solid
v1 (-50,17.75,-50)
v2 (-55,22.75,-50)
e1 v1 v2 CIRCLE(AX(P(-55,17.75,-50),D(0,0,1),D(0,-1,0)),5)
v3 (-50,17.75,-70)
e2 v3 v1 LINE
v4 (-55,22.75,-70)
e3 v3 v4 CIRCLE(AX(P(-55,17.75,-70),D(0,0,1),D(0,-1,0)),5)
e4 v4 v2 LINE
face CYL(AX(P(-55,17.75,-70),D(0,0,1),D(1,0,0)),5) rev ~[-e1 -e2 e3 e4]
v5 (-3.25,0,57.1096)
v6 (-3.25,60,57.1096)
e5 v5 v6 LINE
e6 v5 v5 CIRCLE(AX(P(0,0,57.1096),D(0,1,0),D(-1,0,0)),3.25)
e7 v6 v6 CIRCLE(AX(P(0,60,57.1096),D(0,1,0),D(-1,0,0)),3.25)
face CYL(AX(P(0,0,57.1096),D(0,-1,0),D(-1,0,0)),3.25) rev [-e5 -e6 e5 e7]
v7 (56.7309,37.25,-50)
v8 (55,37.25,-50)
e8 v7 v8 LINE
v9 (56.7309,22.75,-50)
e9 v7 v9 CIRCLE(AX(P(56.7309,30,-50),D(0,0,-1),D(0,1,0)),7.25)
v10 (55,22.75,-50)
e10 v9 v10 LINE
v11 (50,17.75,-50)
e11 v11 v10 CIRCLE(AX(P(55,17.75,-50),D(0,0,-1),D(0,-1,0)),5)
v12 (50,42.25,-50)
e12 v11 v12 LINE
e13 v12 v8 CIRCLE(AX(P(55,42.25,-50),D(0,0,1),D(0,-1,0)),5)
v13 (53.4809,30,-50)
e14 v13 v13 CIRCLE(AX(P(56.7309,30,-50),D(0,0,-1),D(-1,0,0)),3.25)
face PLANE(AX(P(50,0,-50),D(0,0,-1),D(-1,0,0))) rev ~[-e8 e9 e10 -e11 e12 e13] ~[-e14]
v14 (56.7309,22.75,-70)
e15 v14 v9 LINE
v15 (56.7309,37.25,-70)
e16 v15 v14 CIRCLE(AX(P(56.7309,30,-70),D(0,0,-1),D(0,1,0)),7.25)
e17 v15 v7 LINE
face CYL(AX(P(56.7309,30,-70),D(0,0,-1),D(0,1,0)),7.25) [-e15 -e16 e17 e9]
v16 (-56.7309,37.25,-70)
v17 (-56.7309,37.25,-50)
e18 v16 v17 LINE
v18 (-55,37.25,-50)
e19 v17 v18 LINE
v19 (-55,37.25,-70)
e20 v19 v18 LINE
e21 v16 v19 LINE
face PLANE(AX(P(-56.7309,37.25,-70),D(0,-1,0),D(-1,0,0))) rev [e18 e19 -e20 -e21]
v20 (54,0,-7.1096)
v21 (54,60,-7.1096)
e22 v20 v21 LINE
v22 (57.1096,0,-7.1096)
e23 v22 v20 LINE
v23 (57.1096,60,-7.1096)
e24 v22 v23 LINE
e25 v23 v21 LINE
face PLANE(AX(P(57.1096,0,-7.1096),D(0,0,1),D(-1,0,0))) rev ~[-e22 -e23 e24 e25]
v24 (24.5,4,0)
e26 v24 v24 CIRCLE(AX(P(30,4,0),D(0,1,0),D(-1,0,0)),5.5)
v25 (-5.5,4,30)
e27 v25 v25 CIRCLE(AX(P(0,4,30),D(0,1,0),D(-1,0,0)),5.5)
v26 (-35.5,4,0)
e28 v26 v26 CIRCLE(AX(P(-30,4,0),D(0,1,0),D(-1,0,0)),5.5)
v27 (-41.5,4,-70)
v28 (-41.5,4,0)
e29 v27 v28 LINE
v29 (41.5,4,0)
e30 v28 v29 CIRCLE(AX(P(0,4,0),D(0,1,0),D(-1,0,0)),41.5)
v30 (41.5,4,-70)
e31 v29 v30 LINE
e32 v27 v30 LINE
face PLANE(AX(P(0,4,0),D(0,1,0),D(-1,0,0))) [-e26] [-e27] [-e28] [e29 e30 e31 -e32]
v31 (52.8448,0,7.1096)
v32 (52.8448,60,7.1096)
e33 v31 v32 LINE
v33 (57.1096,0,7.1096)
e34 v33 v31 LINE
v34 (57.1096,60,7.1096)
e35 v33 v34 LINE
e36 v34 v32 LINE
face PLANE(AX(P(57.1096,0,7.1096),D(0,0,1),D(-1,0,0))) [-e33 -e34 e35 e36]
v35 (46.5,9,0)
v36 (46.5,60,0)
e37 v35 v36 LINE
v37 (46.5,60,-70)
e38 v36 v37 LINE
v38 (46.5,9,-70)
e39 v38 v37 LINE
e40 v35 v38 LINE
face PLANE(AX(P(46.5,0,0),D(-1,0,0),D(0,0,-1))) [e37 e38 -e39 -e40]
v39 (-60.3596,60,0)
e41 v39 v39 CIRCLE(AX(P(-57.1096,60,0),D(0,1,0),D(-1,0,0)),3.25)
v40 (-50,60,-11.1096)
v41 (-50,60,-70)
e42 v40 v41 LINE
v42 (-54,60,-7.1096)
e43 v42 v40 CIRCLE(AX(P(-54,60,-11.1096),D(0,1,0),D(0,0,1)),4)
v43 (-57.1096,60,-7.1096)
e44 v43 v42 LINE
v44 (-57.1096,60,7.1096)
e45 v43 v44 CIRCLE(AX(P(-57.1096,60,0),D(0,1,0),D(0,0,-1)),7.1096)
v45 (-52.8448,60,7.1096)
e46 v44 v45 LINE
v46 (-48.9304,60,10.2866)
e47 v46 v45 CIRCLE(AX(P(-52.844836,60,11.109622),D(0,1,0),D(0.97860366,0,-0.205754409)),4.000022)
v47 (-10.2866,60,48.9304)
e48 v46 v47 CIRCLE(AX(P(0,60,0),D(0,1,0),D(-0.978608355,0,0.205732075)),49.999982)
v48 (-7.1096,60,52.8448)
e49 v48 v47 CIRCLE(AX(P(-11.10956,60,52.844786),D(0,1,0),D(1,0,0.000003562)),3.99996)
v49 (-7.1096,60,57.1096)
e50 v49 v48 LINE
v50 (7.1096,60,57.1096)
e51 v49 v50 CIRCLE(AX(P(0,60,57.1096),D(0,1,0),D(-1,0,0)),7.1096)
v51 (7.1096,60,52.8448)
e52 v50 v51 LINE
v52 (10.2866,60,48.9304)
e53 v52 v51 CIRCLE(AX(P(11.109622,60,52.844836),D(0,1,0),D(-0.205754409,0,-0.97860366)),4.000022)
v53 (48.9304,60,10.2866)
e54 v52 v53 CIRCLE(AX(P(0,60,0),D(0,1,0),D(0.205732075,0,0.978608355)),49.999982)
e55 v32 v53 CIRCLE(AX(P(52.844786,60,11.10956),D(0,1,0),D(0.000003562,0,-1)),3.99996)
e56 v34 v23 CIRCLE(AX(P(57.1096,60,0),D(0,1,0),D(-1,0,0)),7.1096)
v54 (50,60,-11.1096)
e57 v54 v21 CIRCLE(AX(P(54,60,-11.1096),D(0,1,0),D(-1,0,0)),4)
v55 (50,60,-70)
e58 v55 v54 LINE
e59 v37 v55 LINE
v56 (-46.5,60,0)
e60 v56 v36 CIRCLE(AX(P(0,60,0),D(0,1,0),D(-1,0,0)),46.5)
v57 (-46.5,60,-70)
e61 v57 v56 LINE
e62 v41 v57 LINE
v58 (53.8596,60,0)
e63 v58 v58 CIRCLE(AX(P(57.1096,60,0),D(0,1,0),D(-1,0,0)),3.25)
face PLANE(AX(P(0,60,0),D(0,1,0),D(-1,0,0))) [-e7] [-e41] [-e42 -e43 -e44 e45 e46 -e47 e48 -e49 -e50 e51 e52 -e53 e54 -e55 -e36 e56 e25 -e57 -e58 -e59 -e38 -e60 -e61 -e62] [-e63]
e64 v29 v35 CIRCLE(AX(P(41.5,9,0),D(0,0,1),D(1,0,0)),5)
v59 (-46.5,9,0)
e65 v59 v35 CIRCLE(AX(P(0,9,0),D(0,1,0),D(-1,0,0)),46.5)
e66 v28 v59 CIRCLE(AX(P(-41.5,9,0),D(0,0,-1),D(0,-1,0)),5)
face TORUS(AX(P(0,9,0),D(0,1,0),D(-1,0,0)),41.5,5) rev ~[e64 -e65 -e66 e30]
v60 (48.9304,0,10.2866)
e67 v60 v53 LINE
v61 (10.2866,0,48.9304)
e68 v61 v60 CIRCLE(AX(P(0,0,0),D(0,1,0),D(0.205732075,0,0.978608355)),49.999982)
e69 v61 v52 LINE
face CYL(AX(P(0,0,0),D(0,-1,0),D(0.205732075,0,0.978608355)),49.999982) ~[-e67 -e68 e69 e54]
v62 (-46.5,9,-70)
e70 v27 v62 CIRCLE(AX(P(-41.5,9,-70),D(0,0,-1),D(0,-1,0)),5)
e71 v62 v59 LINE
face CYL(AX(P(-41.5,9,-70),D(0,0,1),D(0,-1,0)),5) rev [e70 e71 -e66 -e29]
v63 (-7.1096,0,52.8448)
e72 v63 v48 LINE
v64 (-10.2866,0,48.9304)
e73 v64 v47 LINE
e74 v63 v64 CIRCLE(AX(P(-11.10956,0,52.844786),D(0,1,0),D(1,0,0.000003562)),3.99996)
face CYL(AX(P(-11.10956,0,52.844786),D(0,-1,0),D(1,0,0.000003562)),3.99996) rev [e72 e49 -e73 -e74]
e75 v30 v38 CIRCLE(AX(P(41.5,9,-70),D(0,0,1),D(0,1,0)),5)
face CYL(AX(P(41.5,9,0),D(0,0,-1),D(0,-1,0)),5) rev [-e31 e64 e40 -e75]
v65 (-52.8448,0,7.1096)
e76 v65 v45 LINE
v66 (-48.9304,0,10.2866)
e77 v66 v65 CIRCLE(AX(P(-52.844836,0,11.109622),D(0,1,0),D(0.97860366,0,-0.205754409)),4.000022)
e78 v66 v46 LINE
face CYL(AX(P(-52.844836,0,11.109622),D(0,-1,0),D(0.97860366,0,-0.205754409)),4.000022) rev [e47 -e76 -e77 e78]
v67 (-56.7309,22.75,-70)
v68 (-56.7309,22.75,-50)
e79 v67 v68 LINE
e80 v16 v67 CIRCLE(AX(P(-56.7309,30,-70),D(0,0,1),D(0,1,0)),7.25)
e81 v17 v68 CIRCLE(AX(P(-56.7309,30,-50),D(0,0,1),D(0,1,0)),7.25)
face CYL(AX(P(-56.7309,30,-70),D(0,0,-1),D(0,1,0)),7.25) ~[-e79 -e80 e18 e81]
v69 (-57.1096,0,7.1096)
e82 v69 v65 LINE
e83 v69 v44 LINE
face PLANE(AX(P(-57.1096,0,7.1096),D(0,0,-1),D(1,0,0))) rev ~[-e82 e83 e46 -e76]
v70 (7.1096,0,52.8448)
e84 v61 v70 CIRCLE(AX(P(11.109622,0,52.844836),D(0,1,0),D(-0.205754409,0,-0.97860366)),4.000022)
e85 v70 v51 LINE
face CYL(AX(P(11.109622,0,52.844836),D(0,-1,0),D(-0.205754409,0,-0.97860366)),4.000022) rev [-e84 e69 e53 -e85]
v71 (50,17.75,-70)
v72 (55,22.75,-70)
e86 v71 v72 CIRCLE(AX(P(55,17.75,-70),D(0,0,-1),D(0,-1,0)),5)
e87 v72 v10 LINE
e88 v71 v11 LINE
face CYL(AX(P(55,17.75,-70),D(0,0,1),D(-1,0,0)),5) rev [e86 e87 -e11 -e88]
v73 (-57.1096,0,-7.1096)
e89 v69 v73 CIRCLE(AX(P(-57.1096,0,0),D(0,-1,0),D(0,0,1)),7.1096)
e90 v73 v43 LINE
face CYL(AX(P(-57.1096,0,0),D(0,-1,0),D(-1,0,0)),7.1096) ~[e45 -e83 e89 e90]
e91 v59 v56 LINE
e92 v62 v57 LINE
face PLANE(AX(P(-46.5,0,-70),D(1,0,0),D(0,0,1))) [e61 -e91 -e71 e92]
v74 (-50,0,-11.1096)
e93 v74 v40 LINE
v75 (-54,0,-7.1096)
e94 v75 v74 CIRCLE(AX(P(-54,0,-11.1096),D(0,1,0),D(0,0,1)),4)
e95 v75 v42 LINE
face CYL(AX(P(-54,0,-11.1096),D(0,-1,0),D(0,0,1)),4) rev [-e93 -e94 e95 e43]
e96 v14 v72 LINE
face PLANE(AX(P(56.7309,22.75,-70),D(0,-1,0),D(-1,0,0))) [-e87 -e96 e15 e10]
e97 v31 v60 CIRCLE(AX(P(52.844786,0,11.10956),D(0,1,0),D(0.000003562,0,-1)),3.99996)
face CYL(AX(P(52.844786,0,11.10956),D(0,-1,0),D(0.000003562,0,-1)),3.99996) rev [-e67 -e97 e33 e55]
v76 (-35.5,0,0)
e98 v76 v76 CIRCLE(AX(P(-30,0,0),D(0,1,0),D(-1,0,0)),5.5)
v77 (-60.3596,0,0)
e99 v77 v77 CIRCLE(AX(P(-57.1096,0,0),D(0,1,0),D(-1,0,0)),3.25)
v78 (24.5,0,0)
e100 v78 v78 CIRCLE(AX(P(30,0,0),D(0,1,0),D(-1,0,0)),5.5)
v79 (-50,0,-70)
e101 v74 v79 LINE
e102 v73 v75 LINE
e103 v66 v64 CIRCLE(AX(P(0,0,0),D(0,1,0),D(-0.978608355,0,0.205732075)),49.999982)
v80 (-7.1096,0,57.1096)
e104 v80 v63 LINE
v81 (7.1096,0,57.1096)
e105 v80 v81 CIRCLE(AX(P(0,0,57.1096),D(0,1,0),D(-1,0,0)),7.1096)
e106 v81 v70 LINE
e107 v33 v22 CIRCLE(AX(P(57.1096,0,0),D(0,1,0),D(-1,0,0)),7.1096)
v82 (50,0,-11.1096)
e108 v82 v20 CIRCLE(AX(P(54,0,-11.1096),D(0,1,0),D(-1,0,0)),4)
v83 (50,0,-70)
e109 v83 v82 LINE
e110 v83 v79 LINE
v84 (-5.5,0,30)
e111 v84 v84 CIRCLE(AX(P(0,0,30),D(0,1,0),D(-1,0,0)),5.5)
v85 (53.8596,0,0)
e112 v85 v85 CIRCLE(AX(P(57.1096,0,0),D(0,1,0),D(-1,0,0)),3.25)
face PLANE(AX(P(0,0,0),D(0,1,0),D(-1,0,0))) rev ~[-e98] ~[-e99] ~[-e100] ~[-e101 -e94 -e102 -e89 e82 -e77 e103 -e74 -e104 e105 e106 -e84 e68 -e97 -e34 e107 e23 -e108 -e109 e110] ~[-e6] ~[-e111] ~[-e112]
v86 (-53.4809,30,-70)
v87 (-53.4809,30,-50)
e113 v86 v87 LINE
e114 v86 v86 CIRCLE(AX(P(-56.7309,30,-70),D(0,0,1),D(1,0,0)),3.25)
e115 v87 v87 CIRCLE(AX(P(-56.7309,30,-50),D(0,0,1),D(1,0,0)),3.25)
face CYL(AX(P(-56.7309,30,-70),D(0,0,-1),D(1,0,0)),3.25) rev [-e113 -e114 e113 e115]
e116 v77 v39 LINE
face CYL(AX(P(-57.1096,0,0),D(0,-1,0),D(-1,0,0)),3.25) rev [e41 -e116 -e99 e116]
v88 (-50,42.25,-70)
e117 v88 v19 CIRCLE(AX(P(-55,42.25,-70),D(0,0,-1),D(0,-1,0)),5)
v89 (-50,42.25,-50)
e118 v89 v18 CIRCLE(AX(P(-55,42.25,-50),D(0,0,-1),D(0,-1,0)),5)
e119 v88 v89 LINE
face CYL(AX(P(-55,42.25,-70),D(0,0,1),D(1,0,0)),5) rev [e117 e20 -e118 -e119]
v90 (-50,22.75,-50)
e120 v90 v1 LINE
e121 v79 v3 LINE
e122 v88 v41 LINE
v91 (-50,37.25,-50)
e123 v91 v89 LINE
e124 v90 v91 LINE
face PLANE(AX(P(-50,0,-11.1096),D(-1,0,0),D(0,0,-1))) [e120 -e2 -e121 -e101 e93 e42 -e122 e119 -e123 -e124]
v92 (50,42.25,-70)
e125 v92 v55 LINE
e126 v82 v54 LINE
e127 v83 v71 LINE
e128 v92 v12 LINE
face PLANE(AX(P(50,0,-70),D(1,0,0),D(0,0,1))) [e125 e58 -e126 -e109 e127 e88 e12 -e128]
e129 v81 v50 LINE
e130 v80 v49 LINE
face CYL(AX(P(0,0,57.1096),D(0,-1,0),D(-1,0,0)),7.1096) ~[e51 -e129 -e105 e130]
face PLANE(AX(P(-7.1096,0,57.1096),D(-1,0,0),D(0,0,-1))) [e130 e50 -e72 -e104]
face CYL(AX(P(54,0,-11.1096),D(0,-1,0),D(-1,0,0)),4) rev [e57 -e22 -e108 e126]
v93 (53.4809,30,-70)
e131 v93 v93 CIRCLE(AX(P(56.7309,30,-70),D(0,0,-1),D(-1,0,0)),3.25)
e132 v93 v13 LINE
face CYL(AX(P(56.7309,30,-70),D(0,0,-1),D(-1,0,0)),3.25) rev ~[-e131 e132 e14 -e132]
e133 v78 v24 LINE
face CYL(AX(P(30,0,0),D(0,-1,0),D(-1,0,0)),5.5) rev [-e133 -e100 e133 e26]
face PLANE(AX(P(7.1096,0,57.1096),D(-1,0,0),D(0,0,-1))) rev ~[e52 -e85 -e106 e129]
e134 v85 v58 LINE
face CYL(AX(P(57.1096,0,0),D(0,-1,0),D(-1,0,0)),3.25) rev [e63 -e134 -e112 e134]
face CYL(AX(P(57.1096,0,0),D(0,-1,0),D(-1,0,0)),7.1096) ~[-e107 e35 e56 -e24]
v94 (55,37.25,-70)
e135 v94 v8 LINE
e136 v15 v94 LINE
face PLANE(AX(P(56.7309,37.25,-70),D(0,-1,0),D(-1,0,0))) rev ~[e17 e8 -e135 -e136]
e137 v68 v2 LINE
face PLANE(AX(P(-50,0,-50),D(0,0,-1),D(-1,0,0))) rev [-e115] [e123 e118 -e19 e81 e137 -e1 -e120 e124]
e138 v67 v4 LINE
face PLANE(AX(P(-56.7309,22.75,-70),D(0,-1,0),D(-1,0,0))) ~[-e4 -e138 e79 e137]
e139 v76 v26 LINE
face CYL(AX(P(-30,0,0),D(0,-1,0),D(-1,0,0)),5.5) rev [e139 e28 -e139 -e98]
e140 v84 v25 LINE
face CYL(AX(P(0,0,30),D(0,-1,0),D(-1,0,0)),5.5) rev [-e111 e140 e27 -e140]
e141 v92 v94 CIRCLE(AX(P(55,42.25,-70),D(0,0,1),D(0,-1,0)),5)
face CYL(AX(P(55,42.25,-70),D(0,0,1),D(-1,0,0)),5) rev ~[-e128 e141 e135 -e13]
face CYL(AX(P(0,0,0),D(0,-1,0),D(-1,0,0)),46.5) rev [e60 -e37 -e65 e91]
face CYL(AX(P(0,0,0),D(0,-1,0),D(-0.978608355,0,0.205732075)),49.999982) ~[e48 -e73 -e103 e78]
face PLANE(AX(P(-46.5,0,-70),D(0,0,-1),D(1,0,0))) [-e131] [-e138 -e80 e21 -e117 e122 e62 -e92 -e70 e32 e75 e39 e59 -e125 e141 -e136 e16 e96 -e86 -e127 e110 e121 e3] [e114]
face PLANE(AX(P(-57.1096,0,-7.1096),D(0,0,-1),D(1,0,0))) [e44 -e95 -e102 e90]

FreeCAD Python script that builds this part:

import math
import FreeCAD as App
import Part
import Sketcher
from FreeCAD import Vector
Q = App.Units.Quantity


def edges_at(feature, points):
    """Names of the edges that pass closest to the given points."""
    edges = feature.Shape.Edges
    near = lambda p: min(range(len(edges)), key=lambda i: edges[i].distToShape(Part.Vertex(*p))[0])
    return sorted({f"Edge{near(p) + 1}" for p in points})

doc = App.newDocument("Part")
body = doc.addObject("PartDesign::Body", "Body")

sketch1 = body.newObject("Sketcher::SketchObject", "Sketch")
sketch1.AttachmentSupport = (doc.getObject("XZ_Plane"), [""])
sketch1.MapMode = "FlatFace"
sketch1.addGeometry([
    Part.LineSegment(Vector(46.5, 0, 0), Vector(46.5, -70, 0)),
    Part.LineSegment(Vector(46.5, -70, 0), Vector(-46.5, -70, 0)),
    Part.LineSegment(Vector(-46.5, -70, 0), Vector(-46.5, 0, 0)),
    Part.ArcOfCircle(Part.Circle(Vector(0, 0, 0), Vector(0, 0, 1), 46.5), math.radians(0), math.radians(180)),
    Part.Circle(Vector(30, 0, 0), Vector(0, 0, 1), 5.5),
    Part.Circle(Vector(-30, 0, 0), Vector(0, 0, 1), 5.5),
    Part.Circle(Vector(0, 30, 0), Vector(0, 0, 1), 5.5),
], False)
sketch1.addConstraint([
    Sketcher.Constraint("Coincident", 0, 2, 1, 1),
    Sketcher.Constraint("Coincident", 1, 2, 2, 1),
    Sketcher.Constraint("Tangent", 2, 2, 3, 2),
    Sketcher.Constraint("Tangent", 3, 1, 0, 1),
    Sketcher.Constraint("Vertical", 0),
    Sketcher.Constraint("Horizontal", 1),
    Sketcher.Constraint("Vertical", 2),
    Sketcher.Constraint("Coincident", 3, 3, -1, 1),
    Sketcher.Constraint("Equal", 4, 5),
    Sketcher.Constraint("Equal", 5, 6),
    Sketcher.Constraint("Symmetric", 4, 3, 5, 3, -1, 1),
    Sketcher.Constraint("PointOnObject", 4, 3, -1),
    Sketcher.Constraint("PointOnObject", 6, 3, -2),
    Sketcher.Constraint("Diameter", 4, Q("11 mm")),
    Sketcher.Constraint("DistanceY", 0, 2, 0, 1, Q("70 mm")),
    Sketcher.Constraint("DistanceX", -1, 1, 4, 3, Q("30 mm")),
    Sketcher.Constraint("DistanceY", -1, 1, 6, 3, Q("30 mm")),
    Sketcher.Constraint("Radius", 3, Q("46.5 mm")),
])
pad1 = body.newObject("PartDesign::Pad", "Pad")
pad1.Profile = sketch1
pad1.Length = 4
pad1.Reversed = True

sketch2 = body.newObject("Sketcher::SketchObject", "Sketch001")
sketch2.AttachmentSupport = (doc.getObject("XZ_Plane"), [""])
sketch2.MapMode = "FlatFace"
sketch2.addGeometry([
    Part.ArcOfCircle(Part.Circle(Vector(11.1096, 52.8448, 0), Vector(0, 0, 1), 3.999982), math.radians(180), math.radians(258.126539)),
    Part.ArcOfCircle(Part.Circle(Vector(0, 0, 0), Vector(0, 0, 1), 49.999982), math.radians(11.872357), math.radians(78.127643)),
    Part.ArcOfCircle(Part.Circle(Vector(52.8448, 11.1096, 0), Vector(0, 0, 1), 4), math.radians(-168.126539), math.radians(-90)),
    Part.LineSegment(Vector(52.8448, 7.1096, 0), Vector(57.1096, 7.1096, 0)),
    Part.ArcOfCircle(Part.Circle(Vector(57.1096, 0, 0), Vector(0, 0, 1), 7.1096), math.radians(-90), math.radians(90)),
    Part.LineSegment(Vector(57.1096, -7.1096, 0), Vector(54, -7.1096, 0)),
    Part.ArcOfCircle(Part.Circle(Vector(54, -11.1096, 0), Vector(0, 0, 1), 4), math.radians(90), math.radians(180)),
    Part.LineSegment(Vector(50, -11.1096, 0), Vector(50, -70, 0)),
    Part.LineSegment(Vector(50, -70, 0), Vector(46.5, -70, 0)),
    Part.LineSegment(Vector(46.5, -70, 0), Vector(46.5, 0, 0)),
    Part.ArcOfCircle(Part.Circle(Vector(0, 0, 0), Vector(0, 0, 1), 46.5), math.radians(0), math.radians(180)),
    Part.LineSegment(Vector(-46.5, 0, 0), Vector(-46.5, -70, 0)),
    Part.LineSegment(Vector(-46.5, -70, 0), Vector(-50, -70, 0)),
    Part.LineSegment(Vector(-50, -70, 0), Vector(-50, -11.1096, 0)),
    Part.ArcOfCircle(Part.Circle(Vector(-54, -11.1096, 0), Vector(0, 0, 1), 4), math.radians(0), math.radians(90)),
    Part.LineSegment(Vector(-54, -7.1096, 0), Vector(-57.1096, -7.1096, 0)),
    Part.ArcOfCircle(Part.Circle(Vector(-57.1096, 0, 0), Vector(0, 0, 1), 7.1096), math.radians(90), math.radians(270)),
    Part.LineSegment(Vector(-57.1096, 7.1096, 0), Vector(-52.8448, 7.1096, 0)),
    Part.ArcOfCircle(Part.Circle(Vector(-52.8448, 11.1096, 0), Vector(0, 0, 1), 3.999982), math.radians(-90), math.radians(-11.873461)),
    Part.ArcOfCircle(Part.Circle(Vector(0, 0, 0), Vector(0, 0, 1), 49.999982), math.radians(101.872357), math.radians(168.127643)),
    Part.ArcOfCircle(Part.Circle(Vector(-11.1096, 52.8448, 0), Vector(0, 0, 1), 4), math.radians(-78.126539), math.radians(0)),
    Part.LineSegment(Vector(-7.1096, 52.8448, 0), Vector(-7.1096, 57.1096, 0)),
    Part.ArcOfCircle(Part.Circle(Vector(0, 57.1096, 0), Vector(0, 0, 1), 7.1096), math.radians(0), math.radians(180)),
    Part.LineSegment(Vector(7.1096, 57.1096, 0), Vector(7.1096, 52.8448, 0)),
    Part.Circle(Vector(0, 57.1096, 0), Vector(0, 0, 1), 3.25),
    Part.Circle(Vector(-57.1096, 0, 0), Vector(0, 0, 1), 3.25),
    Part.Circle(Vector(57.1096, 0, 0), Vector(0, 0, 1), 3.25),
], False)
sketch2.addConstraint([
    Sketcher.Constraint("Tangent", 0, 2, 1, 2),
    Sketcher.Constraint("Tangent", 1, 1, 2, 1),
    Sketcher.Constraint("Tangent", 2, 2, 3, 1),
    Sketcher.Constraint("Tangent", 3, 2, 4, 2),
    Sketcher.Constraint("Tangent", 4, 1, 5, 1),
    Sketcher.Constraint("Tangent", 5, 2, 6, 1),
    Sketcher.Constraint("Tangent", 6, 2, 7, 1),
    Sketcher.Constraint("Coincident", 7, 2, 8, 1),
    Sketcher.Constraint("Coincident", 8, 2, 9, 1),
    Sketcher.Constraint("Tangent", 9, 2, 10, 1),
    Sketcher.Constraint("Tangent", 10, 2, 11, 1),
    Sketcher.Constraint("Coincident", 11, 2, 12, 1),
    Sketcher.Constraint("Coincident", 12, 2, 13, 1),
    Sketcher.Constraint("Tangent", 13, 2, 14, 1),
    Sketcher.Constraint("Tangent", 14, 2, 15, 1),
    Sketcher.Constraint("Tangent", 15, 2, 16, 2),
    Sketcher.Constraint("Tangent", 16, 1, 17, 1),
    Sketcher.Constraint("Tangent", 17, 2, 18, 1),
    Sketcher.Constraint("Tangent", 18, 2, 19, 2),
    Sketcher.Constraint("Tangent", 19, 1, 20, 1),
    Sketcher.Constraint("Tangent", 20, 2, 21, 1),
    Sketcher.Constraint("Tangent", 21, 2, 22, 2),
    Sketcher.Constraint("Tangent", 22, 1, 23, 1),
    Sketcher.Constraint("Tangent", 23, 2, 0, 1),
    Sketcher.Constraint("Horizontal", 3),
    Sketcher.Constraint("Horizontal", 5),
    Sketcher.Constraint("Vertical", 7),
    Sketcher.Constraint("Horizontal", 8),
    Sketcher.Constraint("Vertical", 9),
    Sketcher.Constraint("Vertical", 11),
    Sketcher.Constraint("Horizontal", 12),
    Sketcher.Constraint("Vertical", 13),
    Sketcher.Constraint("Horizontal", 15),
    Sketcher.Constraint("Horizontal", 17),
    Sketcher.Constraint("Vertical", 21),
    Sketcher.Constraint("Vertical", 23),
    Sketcher.Constraint("Coincident", 1, 3, -1, 1),
    Sketcher.Constraint("Coincident", 10, 3, -1, 1),
    Sketcher.Constraint("Coincident", 19, 3, -1, 1),
    Sketcher.Constraint("Coincident", 24, 3, 22, 3),
    Sketcher.Constraint("Coincident", 25, 3, 16, 3),
    Sketcher.Constraint("Coincident", 26, 3, 4, 3),
    Sketcher.Constraint("Equal", 0, 2),
    Sketcher.Constraint("Equal", 2, 6),
    Sketcher.Constraint("Equal", 6, 14),
    Sketcher.Constraint("Equal", 4, 16),
    Sketcher.Constraint("Equal", 14, 18),
    Sketcher.Constraint("Equal", 1, 19),
    Sketcher.Constraint("Equal", 18, 20),
    Sketcher.Constraint("Equal", 16, 22),
    Sketcher.Constraint("Equal", 24, 25),
    Sketcher.Constraint("Equal", 25, 26),
    Sketcher.Constraint("Symmetric", 4, 3, 16, 3, -1, 1),
    Sketcher.Constraint("Symmetric", 6, 3, 14, 3, -2),
    Sketcher.Constraint("PointOnObject", 22, 3, -2),
    Sketcher.Constraint("Horizontal", 8, 2, 11, 2),
    Sketcher.Constraint("Equal", 17, 21),
    Sketcher.Constraint("Radius", 0, Q("4 mm")),
    Sketcher.Constraint("Radius", 1, Q("50 mm")),
    Sketcher.Constraint("Diameter", 24, Q("6.5 mm")),
    Sketcher.Constraint("DistanceY", 9, 1, 9, 2, Q("70 mm")),
    Sketcher.Constraint("DistanceX", 8, 2, 8, 1, Q("3.5 mm")),
    Sketcher.Constraint("Radius", 10, Q("46.5 mm")),
    Sketcher.Constraint("DistanceX", 0, 3, 4, 3, Q("46 mm")),
    Sketcher.Constraint("Radius", 4, Q("7.1096 mm")),
])
pad2 = body.newObject("PartDesign::Pad", "Pad001")
pad2.Profile = sketch2
pad2.Length = 60
pad2.Reversed = True

sketch3 = body.newObject("Sketcher::SketchObject", "Sketch002")
sketch3.AttachmentSupport = (doc.getObject("XY_Plane"), [""])
sketch3.MapMode = "FlatFace"
sketch3.AttachmentOffset = App.Placement(Vector(0, 0, -70), App.Rotation())
sketch3.addGeometry([
    Part.LineSegment(Vector(50, 37.25, 0), Vector(56.7309, 37.25, 0)),
    Part.ArcOfCircle(Part.Circle(Vector(56.7309, 30, 0), Vector(0, 0, 1), 7.25), math.radians(-90), math.radians(90)),
    Part.LineSegment(Vector(56.7309, 22.75, 0), Vector(50, 22.75, 0)),
    Part.LineSegment(Vector(50, 22.75, 0), Vector(50, 37.25, 0)),
    Part.Circle(Vector(56.7309, 30, 0), Vector(0, 0, 1), 3.25),
], False)
sketch3.addConstraint([
    Sketcher.Constraint("Tangent", 0, 2, 1, 2),
    Sketcher.Constraint("Tangent", 1, 1, 2, 1),
    Sketcher.Constraint("Coincident", 2, 2, 3, 1),
    Sketcher.Constraint("Coincident", 3, 2, 0, 1),
    Sketcher.Constraint("Horizontal", 0),
    Sketcher.Constraint("Horizontal", 2),
    Sketcher.Constraint("Vertical", 3),
    Sketcher.Constraint("Coincident", 4, 3, 1, 3),
    Sketcher.Constraint("Diameter", 4, Q("6.5 mm")),
    Sketcher.Constraint("DistanceY", -1, 1, 1, 3, Q("30 mm")),
    Sketcher.Constraint("Radius", 1, Q("7.25 mm")),
    Sketcher.Constraint("DistanceX", -1, 1, 2, 2, Q("50 mm")),
    Sketcher.Constraint("DistanceX", 0, 1, 0, 2, Q("6.731 mm")),
])
pad3 = body.newObject("PartDesign::Pad", "Pad002")
pad3.Profile = sketch3
pad3.Length = 20
doc.recompute()

fillet = body.newObject("PartDesign::Fillet", "Fillet")
fillet.Base = (pad3, edges_at(pad3, [(50, 37.25, -60), (50, 22.75, -60)]))
fillet.Radius = 5
doc.recompute()

mirrored = body.newObject("PartDesign::Mirrored", "Mirrored")
mirrored.Originals = [pad3]
mirrored.MirrorPlane = (doc.getObject("YZ_Plane"), [""])
body.Tip = mirrored
doc.recompute()

fillet2 = body.newObject("PartDesign::Fillet", "Fillet001")
fillet2.Base = (mirrored, edges_at(mirrored, [(-50, 37.25, -60), (-50, 22.75, -60)]))
fillet2.Radius = 5
doc.recompute()

fillet3 = body.newObject("PartDesign::Fillet", "Fillet002")
fillet3.Base = (fillet2, edges_at(fillet2, [(0, 4, 46.5), (46.5, 4, -35), (-46.5, 4, -35)]))
fillet3.Radius = 5

doc.recompute()
